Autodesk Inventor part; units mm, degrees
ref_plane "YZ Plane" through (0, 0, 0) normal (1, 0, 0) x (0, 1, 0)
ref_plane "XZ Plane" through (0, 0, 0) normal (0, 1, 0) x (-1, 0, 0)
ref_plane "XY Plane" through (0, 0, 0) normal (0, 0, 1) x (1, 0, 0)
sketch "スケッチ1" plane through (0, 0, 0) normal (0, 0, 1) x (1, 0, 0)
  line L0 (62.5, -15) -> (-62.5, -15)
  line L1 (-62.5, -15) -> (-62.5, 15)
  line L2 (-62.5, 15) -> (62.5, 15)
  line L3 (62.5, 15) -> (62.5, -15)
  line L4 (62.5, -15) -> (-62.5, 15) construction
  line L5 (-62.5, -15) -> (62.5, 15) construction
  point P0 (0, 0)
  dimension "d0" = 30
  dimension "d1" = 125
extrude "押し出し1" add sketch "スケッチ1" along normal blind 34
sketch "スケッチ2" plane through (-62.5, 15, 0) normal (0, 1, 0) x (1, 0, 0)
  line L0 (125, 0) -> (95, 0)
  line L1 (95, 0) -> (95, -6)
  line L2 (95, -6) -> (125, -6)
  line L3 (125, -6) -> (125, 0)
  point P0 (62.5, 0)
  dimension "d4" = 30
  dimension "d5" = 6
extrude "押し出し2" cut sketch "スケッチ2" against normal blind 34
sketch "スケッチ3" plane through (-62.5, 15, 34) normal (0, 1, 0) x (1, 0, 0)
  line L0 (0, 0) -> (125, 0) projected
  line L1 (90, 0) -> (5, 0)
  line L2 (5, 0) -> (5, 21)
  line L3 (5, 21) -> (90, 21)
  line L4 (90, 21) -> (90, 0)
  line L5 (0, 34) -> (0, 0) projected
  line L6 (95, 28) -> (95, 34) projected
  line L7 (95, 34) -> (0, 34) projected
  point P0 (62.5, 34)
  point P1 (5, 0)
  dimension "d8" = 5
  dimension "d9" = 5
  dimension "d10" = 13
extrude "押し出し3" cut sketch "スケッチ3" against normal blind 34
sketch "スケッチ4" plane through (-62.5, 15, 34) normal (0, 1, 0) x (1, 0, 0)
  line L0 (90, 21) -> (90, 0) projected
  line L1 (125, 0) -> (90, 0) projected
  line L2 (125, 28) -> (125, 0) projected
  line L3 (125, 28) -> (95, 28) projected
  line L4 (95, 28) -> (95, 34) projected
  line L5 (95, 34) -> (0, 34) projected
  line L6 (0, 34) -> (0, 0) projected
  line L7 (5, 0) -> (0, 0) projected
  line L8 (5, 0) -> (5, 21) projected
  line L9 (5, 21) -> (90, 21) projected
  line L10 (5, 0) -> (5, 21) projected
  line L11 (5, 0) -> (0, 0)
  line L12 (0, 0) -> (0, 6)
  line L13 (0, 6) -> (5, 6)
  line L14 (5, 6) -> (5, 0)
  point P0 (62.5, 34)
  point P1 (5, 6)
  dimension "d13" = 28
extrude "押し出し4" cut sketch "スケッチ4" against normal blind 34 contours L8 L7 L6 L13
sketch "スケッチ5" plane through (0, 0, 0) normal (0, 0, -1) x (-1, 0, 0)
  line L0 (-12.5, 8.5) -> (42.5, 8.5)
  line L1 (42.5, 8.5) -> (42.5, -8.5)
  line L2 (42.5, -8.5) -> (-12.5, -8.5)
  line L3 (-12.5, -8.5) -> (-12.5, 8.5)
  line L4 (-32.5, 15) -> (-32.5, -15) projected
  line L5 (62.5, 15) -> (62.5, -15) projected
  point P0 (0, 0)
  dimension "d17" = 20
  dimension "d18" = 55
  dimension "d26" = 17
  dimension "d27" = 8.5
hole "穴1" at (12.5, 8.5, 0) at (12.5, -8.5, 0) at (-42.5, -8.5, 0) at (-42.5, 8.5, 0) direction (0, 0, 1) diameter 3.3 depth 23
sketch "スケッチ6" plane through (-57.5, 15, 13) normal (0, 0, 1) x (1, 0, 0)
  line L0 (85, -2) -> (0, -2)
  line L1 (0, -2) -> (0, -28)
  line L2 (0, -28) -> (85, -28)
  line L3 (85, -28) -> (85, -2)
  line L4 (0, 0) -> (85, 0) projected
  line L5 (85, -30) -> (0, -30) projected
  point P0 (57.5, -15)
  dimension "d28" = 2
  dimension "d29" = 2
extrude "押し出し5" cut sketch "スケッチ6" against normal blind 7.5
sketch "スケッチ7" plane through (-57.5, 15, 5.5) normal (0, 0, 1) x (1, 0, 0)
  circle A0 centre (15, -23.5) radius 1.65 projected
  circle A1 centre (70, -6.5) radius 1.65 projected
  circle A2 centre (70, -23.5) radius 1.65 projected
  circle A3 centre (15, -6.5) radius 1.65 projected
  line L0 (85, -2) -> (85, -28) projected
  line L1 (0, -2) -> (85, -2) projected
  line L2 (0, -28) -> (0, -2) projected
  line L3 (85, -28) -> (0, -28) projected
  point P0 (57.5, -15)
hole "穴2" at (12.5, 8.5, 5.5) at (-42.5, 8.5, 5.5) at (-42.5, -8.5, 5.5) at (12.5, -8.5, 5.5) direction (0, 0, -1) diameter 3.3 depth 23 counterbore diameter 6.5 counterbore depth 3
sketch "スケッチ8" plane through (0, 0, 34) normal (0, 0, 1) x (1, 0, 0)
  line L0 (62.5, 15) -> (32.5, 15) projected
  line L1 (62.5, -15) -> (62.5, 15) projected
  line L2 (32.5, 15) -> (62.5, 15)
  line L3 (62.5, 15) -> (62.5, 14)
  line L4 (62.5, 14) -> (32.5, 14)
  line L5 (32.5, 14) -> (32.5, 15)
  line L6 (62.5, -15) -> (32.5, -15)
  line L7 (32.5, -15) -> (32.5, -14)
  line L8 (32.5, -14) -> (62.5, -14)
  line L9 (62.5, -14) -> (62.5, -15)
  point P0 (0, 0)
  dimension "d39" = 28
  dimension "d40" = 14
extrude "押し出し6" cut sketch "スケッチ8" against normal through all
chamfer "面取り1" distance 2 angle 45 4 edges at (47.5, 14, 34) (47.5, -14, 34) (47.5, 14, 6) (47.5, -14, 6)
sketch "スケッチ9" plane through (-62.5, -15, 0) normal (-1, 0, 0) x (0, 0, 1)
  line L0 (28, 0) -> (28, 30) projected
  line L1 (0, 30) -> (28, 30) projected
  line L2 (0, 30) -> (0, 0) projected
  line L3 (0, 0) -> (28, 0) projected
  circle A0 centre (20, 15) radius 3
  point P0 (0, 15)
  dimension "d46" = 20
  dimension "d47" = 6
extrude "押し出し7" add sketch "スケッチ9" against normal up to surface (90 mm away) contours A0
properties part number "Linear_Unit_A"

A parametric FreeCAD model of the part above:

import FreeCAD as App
import Part
import Sketcher
from FreeCAD import Vector


def edges_at(feature, points):
    """Names of the edges that pass closest to the given points."""
    edges = feature.Shape.Edges
    near = lambda p: min(range(len(edges)), key=lambda i: edges[i].distToShape(Part.Vertex(*p))[0])
    return sorted({f"Edge{near(p) + 1}" for p in points})


def add_polygon(sketch, points):
    """Adds a closed chain of lines whose ends are joined by coincident constraints."""
    first, n = sketch.GeometryCount, len(points)
    for a, b in zip(points, points[1:] + points[:1]):
        sketch.addGeometry(Part.LineSegment(App.Vector(*a, 0), App.Vector(*b, 0)), False)
    for i in range(n):
        sketch.addConstraint(Sketcher.Constraint("Coincident", first + i, 2, first + (i + 1) % n, 1))

doc = App.newDocument("Part")
body = doc.addObject("PartDesign::Body", "Body")

sketch1 = body.newObject("Sketcher::SketchObject", "Sketch")
sketch1.AttachmentSupport = (doc.getObject("XY_Plane"), [""])
sketch1.MapMode = "FlatFace"
add_polygon(sketch1, [(-62, -15), (62, -15), (62, 15), (-62, 15)])
sketch1.addConstraint([
    Sketcher.Constraint("Horizontal", 0),
    Sketcher.Constraint("Vertical", 1),
    Sketcher.Constraint("Horizontal", 2),
    Sketcher.Constraint("Vertical", 3),
    Sketcher.Constraint("Symmetric", 0, 2, 2, 2, -1, 1),
    Sketcher.Constraint("DistanceX", 0, 1, 0, 2, 125.0),
    Sketcher.Constraint("DistanceY", 1, 1, 1, 2, 30.0),
])
pad1 = body.newObject("PartDesign::Pad", "Pad")
pad1.Profile = sketch1
pad1.Length = 34

sketch2 = body.newObject("Sketcher::SketchObject", "Sketch001")
sketch2.AttachmentSupport = (doc.getObject("XZ_Plane"), [""])
sketch2.MapMode = "FlatFace"
sketch2.AttachmentOffset = App.Placement(Vector(0, 0, -15), App.Rotation())
add_polygon(sketch2, [(62, 6), (62, 0), (32, 0), (32, 6)])
sketch2.addConstraint([
    Sketcher.Constraint("Vertical", 0),
    Sketcher.Constraint("Horizontal", 1),
    Sketcher.Constraint("Vertical", 2),
    Sketcher.Constraint("Horizontal", 3),
    Sketcher.Constraint("PointOnObject", 0, 2, -1),
    Sketcher.Constraint("DistanceX", 1, 2, 1, 1, 30.0),
    Sketcher.Constraint("DistanceY", 0, 2, 0, 1, 6.0),
    Sketcher.Constraint("DistanceX", -1, 1, 0, 2, 62.5),
])
pocket1 = body.newObject("PartDesign::Pocket", "Pocket")
pocket1.Profile = sketch2
pocket1.Length = 34
pocket1.Reversed = True

sketch3 = body.newObject("Sketcher::SketchObject", "Sketch002")
sketch3.AttachmentSupport = (doc.getObject("XZ_Plane"), [""])
sketch3.MapMode = "FlatFace"
sketch3.AttachmentOffset = App.Placement(Vector(0, 0, -15), App.Rotation())
add_polygon(sketch3, [(-58, 13), (-58, 34), (28, 34), (28, 13)])
sketch3.addConstraint([
    Sketcher.Constraint("Vertical", 0),
    Sketcher.Constraint("Horizontal", 1),
    Sketcher.Constraint("Vertical", 2),
    Sketcher.Constraint("Horizontal", 3),
    Sketcher.Constraint("DistanceY", -1, 1, 2, 2, 13.0),
    Sketcher.Constraint("DistanceX", 1, 1, 1, 2, 85.0),
    Sketcher.Constraint("DistanceY", 0, 1, 0, 2, 21.0),
    Sketcher.Constraint("DistanceX", 0, 2, -1, 1, 57.5),
])
pocket2 = body.newObject("PartDesign::Pocket", "Pocket001")
pocket2.Profile = sketch3
pocket2.Length = 34
pocket2.Reversed = True

sketch4 = body.newObject("Sketcher::SketchObject", "Sketch003")
sketch4.AttachmentSupport = (doc.getObject("XZ_Plane"), [""])
sketch4.MapMode = "FlatFace"
sketch4.AttachmentOffset = App.Placement(Vector(0, 0, -15), App.Rotation())
add_polygon(sketch4, [(-58, 34), (-58, 28), (-62, 28), (-62, 34)])
sketch4.addConstraint([
    Sketcher.Constraint("Vertical", 0),
    Sketcher.Constraint("Horizontal", 1),
    Sketcher.Constraint("Vertical", 2),
    Sketcher.Constraint("Horizontal", 3),
    Sketcher.Constraint("DistanceY", -1, 1, 0, 2, 28.0),
    Sketcher.Constraint("DistanceX", 1, 2, 1, 1, 5.0),
    Sketcher.Constraint("DistanceY", 0, 2, 0, 1, 6.0),
    Sketcher.Constraint("DistanceX", 0, 2, -1, 1, 57.5),
])
pocket3 = body.newObject("PartDesign::Pocket", "Pocket002")
pocket3.Profile = sketch4
pocket3.Length = 34
pocket3.Reversed = True

sketch5 = body.newObject("Sketcher::SketchObject", "Sketch004")
sketch5.AttachmentSupport = (doc.getObject("XY_Plane"), [""])
sketch5.MapMode = "FlatFace"
sketch5.addGeometry([
    Part.Circle(Vector(12.5, 8.5, 0), Vector(0, 0, 1), 1.6),
    Part.Circle(Vector(12.5, -8.5, 0), Vector(0, 0, 1), 1.6),
    Part.Circle(Vector(-42.5, -8.5, 0), Vector(0, 0, 1), 1.6),
    Part.Circle(Vector(-42.5, 8.5, 0), Vector(0, 0, 1), 1.6),
], False)
sketch5.addConstraint([
    Sketcher.Constraint("Equal", 0, 1),
    Sketcher.Constraint("Equal", 1, 2),
    Sketcher.Constraint("Equal", 2, 3),
    Sketcher.Constraint("Symmetric", 0, 3, 1, 3, -1),
    Sketcher.Constraint("Symmetric", 2, 3, 3, 3, -1),
    Sketcher.Constraint("Horizontal", 1, 3, 2, 3),
    Sketcher.Constraint("Diameter", 0, 3.3),
    Sketcher.Constraint("DistanceY", 1, 3, 0, 3, 17.0),
    Sketcher.Constraint("DistanceX", 2, 3, 1, 3, 55.0),
    Sketcher.Constraint("DistanceX", -1, 1, 0, 3, 12.5),
])
doc.recompute()
hole = body.newObject("PartDesign::Hole", "Hole")
hole.Profile = sketch5
hole.ThreadType = "None"
hole.Diameter = 3.3
hole.DepthType = "Dimension"
hole.Depth = 23
hole.DrillPoint = "Flat"
hole.Reversed = True

sketch6 = body.newObject("Sketcher::SketchObject", "Sketch005")
sketch6.AttachmentSupport = (doc.getObject("XY_Plane"), [""])
sketch6.MapMode = "FlatFace"
sketch6.AttachmentOffset = App.Placement(Vector(0, 0, 13), App.Rotation())
add_polygon(sketch6, [(28, -13), (28, 13), (-58, 13), (-58, -13)])
sketch6.addConstraint([
    Sketcher.Constraint("Vertical", 0),
    Sketcher.Constraint("Horizontal", 1),
    Sketcher.Constraint("Vertical", 2),
    Sketcher.Constraint("Horizontal", 3),
    Sketcher.Constraint("DistanceX", 1, 2, 1, 1, 85.0),
    Sketcher.Constraint("DistanceY", 0, 1, 0, 2, 26.0),
    Sketcher.Constraint("DistanceY", -1, 1, 0, 2, 13.0),
    Sketcher.Constraint("DistanceX", -1, 1, 0, 2, 27.5),
])
pocket4 = body.newObject("PartDesign::Pocket", "Pocket003")
pocket4.Profile = sketch6
pocket4.Length = 7.5

sketch7 = body.newObject("Sketcher::SketchObject", "Sketch006")
sketch7.AttachmentSupport = (doc.getObject("XY_Plane"), [""])
sketch7.MapMode = "FlatFace"
sketch7.AttachmentOffset = App.Placement(Vector(0, 0, 5.5), App.Rotation())
sketch7.addGeometry([
    Part.Circle(Vector(12.5, 8.5, 0), Vector(0, 0, 1), 1.6),
    Part.Circle(Vector(-42.5, 8.5, 0), Vector(0, 0, 1), 1.6),
    Part.Circle(Vector(-42.5, -8.5, 0), Vector(0, 0, 1), 1.6),
    Part.Circle(Vector(12.5, -8.5, 0), Vector(0, 0, 1), 1.6),
], False)
sketch7.addConstraint([
    Sketcher.Constraint("Equal", 0, 1),
    Sketcher.Constraint("Equal", 1, 2),
    Sketcher.Constraint("Equal", 2, 3),
    Sketcher.Constraint("Symmetric", 1, 3, 2, 3, -1),
    Sketcher.Constraint("Symmetric", 0, 3, 3, 3, -1),
    Sketcher.Constraint("Horizontal", 0, 3, 1, 3),
    Sketcher.Constraint("Diameter", 0, 3.3),
    Sketcher.Constraint("DistanceX", 1, 3, 0, 3, 55.0),
    Sketcher.Constraint("DistanceY", 2, 3, 1, 3, 17.0),
    Sketcher.Constraint("DistanceX", -1, 1, 0, 3, 12.5),
])
doc.recompute()
hole2 = body.newObject("PartDesign::Hole", "Hole001")
hole2.Profile = sketch7
hole2.ThreadType = "None"
hole2.Diameter = 3.3
hole2.DepthType = "Dimension"
hole2.Depth = 23
hole2.DrillPoint = "Flat"
hole2.HoleCutType = "Counterbore"
hole2.HoleCutDiameter = 6.5
hole2.HoleCutDepth = 3

sketch8 = body.newObject("Sketcher::SketchObject", "Sketch007")
sketch8.AttachmentSupport = (doc.getObject("XY_Plane"), [""])
sketch8.MapMode = "FlatFace"
sketch8.AttachmentOffset = App.Placement(Vector(0, 0, 34), App.Rotation())
add_polygon(sketch8, [(62.5, 14), (62.5, 15), (32.5, 15), (32.5, 14)])
add_polygon(sketch8, [(62.5, -15), (62.5, -14), (32.5, -14), (32.5, -15)])
sketch8.addConstraint([
    Sketcher.Constraint("Vertical", 0),
    Sketcher.Constraint("Horizontal", 1),
    Sketcher.Constraint("Vertical", 2),
    Sketcher.Constraint("Horizontal", 3),
    Sketcher.Constraint("Vertical", 4),
    Sketcher.Constraint("Horizontal", 5),
    Sketcher.Constraint("Vertical", 6),
    Sketcher.Constraint("Horizontal", 7),
    Sketcher.Constraint("Symmetric", 3, 2, 4, 2, -1),
    Sketcher.Constraint("Symmetric", 1, 2, 6, 2, -1),
    Sketcher.Constraint("DistanceY", -1, 1, 2, 2, 14.0),
    Sketcher.Constraint("DistanceX", 1, 2, 1, 1, 30.0),
    Sketcher.Constraint("DistanceY", 0, 1, 0, 2, 1.0),
    Sketcher.Constraint("DistanceX", -1, 1, 0, 2, 62.5),
])
pocket5 = body.newObject("PartDesign::Pocket", "Pocket004")
pocket5.Profile = sketch8
pocket5.Type = "ThroughAll"
doc.recompute()

chamfer = body.newObject("PartDesign::Chamfer", "Chamfer")
chamfer.Base = (pocket5, edges_at(pocket5, [
    (47.5, 14, 34),
    (47.5, -14, 34),
    (47.5, 14, 6),
    (47.5, -14, 6),
]))
chamfer.Size = 2

sketch9 = body.newObject("Sketcher::SketchObject", "Sketch008")
sketch9.AttachmentSupport = (doc.getObject("YZ_Plane"), [""])
sketch9.MapMode = "FlatFace"
sketch9.AttachmentOffset = App.Placement(Vector(0, 0, -62.5), App.Rotation())
sketch9.addGeometry(Part.Circle(Vector(0, 20, 0), Vector(0, 0, 1), 3), False)
sketch9.addConstraint([
    Sketcher.Constraint("PointOnObject", 0, 3, -2),
    Sketcher.Constraint("Diameter", 0, 6.0),
    Sketcher.Constraint("DistanceY", -1, 1, 0, 3, 20.0),
])
pad2 = body.newObject("PartDesign::Pad", "Pad001")
pad2.Profile = sketch9
pad2.Length = 90

doc.recompute()
